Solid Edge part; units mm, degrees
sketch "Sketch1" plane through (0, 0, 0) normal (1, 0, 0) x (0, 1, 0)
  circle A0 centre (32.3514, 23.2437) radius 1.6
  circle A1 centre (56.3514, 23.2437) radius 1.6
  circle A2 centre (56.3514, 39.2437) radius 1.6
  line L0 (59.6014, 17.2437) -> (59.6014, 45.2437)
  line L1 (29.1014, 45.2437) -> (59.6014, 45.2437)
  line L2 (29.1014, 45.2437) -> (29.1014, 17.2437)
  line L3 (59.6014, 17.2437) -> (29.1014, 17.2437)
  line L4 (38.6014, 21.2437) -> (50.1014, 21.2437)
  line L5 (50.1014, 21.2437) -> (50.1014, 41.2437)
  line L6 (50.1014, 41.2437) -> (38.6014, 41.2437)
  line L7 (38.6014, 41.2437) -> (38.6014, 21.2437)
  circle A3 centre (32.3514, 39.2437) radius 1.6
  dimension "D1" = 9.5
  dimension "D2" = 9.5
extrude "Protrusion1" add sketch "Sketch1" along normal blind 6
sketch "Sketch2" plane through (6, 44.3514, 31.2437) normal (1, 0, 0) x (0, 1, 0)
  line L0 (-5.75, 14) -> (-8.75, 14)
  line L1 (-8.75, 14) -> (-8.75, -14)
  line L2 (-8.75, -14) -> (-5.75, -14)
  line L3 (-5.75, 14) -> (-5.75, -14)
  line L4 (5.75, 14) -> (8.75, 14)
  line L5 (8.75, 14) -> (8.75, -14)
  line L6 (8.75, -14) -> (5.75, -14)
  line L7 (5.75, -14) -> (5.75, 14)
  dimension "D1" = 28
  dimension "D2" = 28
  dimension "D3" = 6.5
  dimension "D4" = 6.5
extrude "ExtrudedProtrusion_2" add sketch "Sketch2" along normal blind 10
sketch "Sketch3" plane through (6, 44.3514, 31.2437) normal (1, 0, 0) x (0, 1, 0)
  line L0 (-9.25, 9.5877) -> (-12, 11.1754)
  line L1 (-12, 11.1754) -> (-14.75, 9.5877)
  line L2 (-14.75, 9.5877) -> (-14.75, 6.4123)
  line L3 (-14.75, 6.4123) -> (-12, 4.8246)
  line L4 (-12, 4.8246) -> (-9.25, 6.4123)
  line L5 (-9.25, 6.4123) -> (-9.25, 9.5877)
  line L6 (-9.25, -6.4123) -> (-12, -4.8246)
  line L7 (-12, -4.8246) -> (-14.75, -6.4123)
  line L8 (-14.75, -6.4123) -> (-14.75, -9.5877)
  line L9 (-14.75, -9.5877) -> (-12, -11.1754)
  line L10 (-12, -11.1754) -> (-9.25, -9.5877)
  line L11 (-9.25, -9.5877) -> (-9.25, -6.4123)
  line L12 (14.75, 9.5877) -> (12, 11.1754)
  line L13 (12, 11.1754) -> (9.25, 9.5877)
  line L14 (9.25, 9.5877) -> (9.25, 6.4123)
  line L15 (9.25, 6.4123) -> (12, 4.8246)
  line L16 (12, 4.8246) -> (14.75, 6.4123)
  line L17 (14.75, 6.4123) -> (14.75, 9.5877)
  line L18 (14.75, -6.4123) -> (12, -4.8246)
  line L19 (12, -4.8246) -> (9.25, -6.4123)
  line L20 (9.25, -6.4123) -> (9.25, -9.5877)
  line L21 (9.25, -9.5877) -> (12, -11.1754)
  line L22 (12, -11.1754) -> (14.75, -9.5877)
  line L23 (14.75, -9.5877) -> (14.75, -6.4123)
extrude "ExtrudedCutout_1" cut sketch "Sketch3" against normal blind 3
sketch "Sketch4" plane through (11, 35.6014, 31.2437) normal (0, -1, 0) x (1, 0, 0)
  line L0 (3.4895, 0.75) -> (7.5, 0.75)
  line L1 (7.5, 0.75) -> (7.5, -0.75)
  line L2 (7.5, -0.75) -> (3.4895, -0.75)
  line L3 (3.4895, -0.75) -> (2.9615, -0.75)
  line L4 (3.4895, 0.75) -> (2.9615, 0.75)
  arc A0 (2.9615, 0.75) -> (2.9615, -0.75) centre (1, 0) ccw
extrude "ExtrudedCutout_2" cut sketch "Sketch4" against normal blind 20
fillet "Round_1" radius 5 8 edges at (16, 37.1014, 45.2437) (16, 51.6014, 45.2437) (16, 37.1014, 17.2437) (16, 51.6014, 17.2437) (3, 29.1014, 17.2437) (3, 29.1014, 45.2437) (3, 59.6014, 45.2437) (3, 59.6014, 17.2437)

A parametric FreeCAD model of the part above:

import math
import FreeCAD as App
import Part
import Sketcher
from FreeCAD import Vector
Q = App.Units.Quantity


def edges_at(feature, points):
    """Names of the edges that pass closest to the given points."""
    edges = feature.Shape.Edges
    near = lambda p: min(range(len(edges)), key=lambda i: edges[i].distToShape(Part.Vertex(*p))[0])
    return sorted({f"Edge{near(p) + 1}" for p in points})


def add_polygon(sketch, points):
    """Adds a closed chain of lines whose ends are joined by coincident constraints."""
    first, n = sketch.GeometryCount, len(points)
    for a, b in zip(points, points[1:] + points[:1]):
        sketch.addGeometry(Part.LineSegment(App.Vector(*a, 0), App.Vector(*b, 0)), False)
    for i in range(n):
        sketch.addConstraint(Sketcher.Constraint("Coincident", first + i, 2, first + (i + 1) % n, 1))

doc = App.newDocument("Part")
body = doc.addObject("PartDesign::Body", "Body")

sketch1 = body.newObject("Sketcher::SketchObject", "Sketch")
sketch1.AttachmentSupport = (doc.getObject("YZ_Plane"), [""])
sketch1.MapMode = "FlatFace"
add_polygon(sketch1, [(29.1, 17.2), (59.6, 17.2), (59.6, 45.2), (29.1, 45.2)])
sketch1.addGeometry(Part.Circle(Vector(32.4, 23.2, 0), Vector(0, 0, 1), 1.6), False)
add_polygon(sketch1, [(50.1, 21.2), (38.6, 21.2), (38.6, 41.2), (50.1, 41.2)])
sketch1.addGeometry(Part.Circle(Vector(56.4, 23.2, 0), Vector(0, 0, 1), 1.6), False)
sketch1.addGeometry(Part.Circle(Vector(32.4, 39.2, 0), Vector(0, 0, 1), 1.6), False)
sketch1.addGeometry(Part.Circle(Vector(56.4, 39.2, 0), Vector(0, 0, 1), 1.6), False)
sketch1.addConstraint([
    Sketcher.Constraint("Horizontal", 0),
    Sketcher.Constraint("Vertical", 1),
    Sketcher.Constraint("Horizontal", 2),
    Sketcher.Constraint("Vertical", 3),
    Sketcher.Constraint("Horizontal", 5),
    Sketcher.Constraint("Vertical", 6),
    Sketcher.Constraint("Horizontal", 7),
    Sketcher.Constraint("Vertical", 8),
    Sketcher.Constraint("Equal", 4, 9),
    Sketcher.Constraint("Equal", 9, 10),
    Sketcher.Constraint("Equal", 10, 11),
    Sketcher.Constraint("Horizontal", 4, 3, 9, 3),
    Sketcher.Constraint("Horizontal", 10, 3, 11, 3),
    Sketcher.Constraint("Vertical", 4, 3, 10, 3),
    Sketcher.Constraint("Vertical", 9, 3, 11, 3),
    Sketcher.Constraint("Diameter", 4, 3.2),
    Sketcher.Constraint("DistanceY", 1, 1, 1, 2, 28.0),
    Sketcher.Constraint("DistanceY", 6, 1, 6, 2, 20.0),
    Sketcher.Constraint("DistanceX", 0, 1, 0, 2, 30.5),
    Sketcher.Constraint("DistanceX", 5, 2, 5, 1, 11.5),
    Sketcher.Constraint("DistanceX", 4, 3, 9, 3, 24.0),
    Sketcher.Constraint("DistanceY", 4, 3, 10, 3, 16.0),
    Sketcher.Constraint("DistanceY", 0, 2, 9, 3, 6.0),
    Sketcher.Constraint("DistanceY", 5, 2, 4, 3, 2.0),
    Sketcher.Constraint("DistanceX", 5, 2, 0, 2, 21.0),
    Sketcher.Constraint("DistanceX", 9, 3, 0, 2, 3.25),
    Sketcher.Constraint("DistanceX", -1, 1, 4, 3, 32.3514),
    Sketcher.Constraint("DistanceY", -1, 1, 4, 3, 23.2437),
])
pad1 = body.newObject("PartDesign::Pad", "Pad")
pad1.Profile = sketch1
pad1.Length = 6

sketch2 = body.newObject("Sketcher::SketchObject", "Sketch001")
sketch2.AttachmentSupport = (doc.getObject("YZ_Plane"), [""])
sketch2.MapMode = "FlatFace"
sketch2.AttachmentOffset = App.Placement(Vector(0, 0, 6), App.Rotation())
add_polygon(sketch2, [(38.6, 17.2), (38.6, 45.2), (35.6, 45.2), (35.6, 17.2)])
add_polygon(sketch2, [(53.1, 45.2), (50.1, 45.2), (50.1, 17.2), (53.1, 17.2)])
sketch2.addConstraint([
    Sketcher.Constraint("Vertical", 0),
    Sketcher.Constraint("Horizontal", 1),
    Sketcher.Constraint("Vertical", 2),
    Sketcher.Constraint("Horizontal", 3),
    Sketcher.Constraint("Horizontal", 4),
    Sketcher.Constraint("Vertical", 5),
    Sketcher.Constraint("Horizontal", 6),
    Sketcher.Constraint("Vertical", 7),
    Sketcher.Constraint("Horizontal", 1, 2, 4, 2),
    Sketcher.Constraint("Horizontal", 3, 2, 5, 2),
    Sketcher.Constraint("Equal", 3, 4),
    Sketcher.Constraint("DistanceX", 1, 2, 1, 1, 3.0),
    Sketcher.Constraint("DistanceY", 0, 1, 0, 2, 28.0),
    Sketcher.Constraint("DistanceX", 0, 2, 4, 2, 11.5),
    Sketcher.Constraint("DistanceX", -1, 1, 0, 2, 38.6014),
    Sketcher.Constraint("DistanceY", -1, 1, 0, 2, 45.2437),
])
pad2 = body.newObject("PartDesign::Pad", "Pad001")
pad2.Profile = sketch2
pad2.Length = 10

sketch3 = body.newObject("Sketcher::SketchObject", "Sketch002")
sketch3.AttachmentSupport = (doc.getObject("YZ_Plane"), [""])
sketch3.MapMode = "FlatFace"
sketch3.AttachmentOffset = App.Placement(Vector(0, 0, 6), App.Rotation())
add_polygon(sketch3, [(35.1, 37.7), (35.1, 40.8), (32.4, 42.4), (29.6, 40.8), (29.6, 37.7), (32.4, 36.1)])
add_polygon(sketch3, [(35.1, 21.7), (35.1, 24.8), (32.4, 26.4), (29.6, 24.8), (29.6, 21.7), (32.4, 20.1)])
add_polygon(sketch3, [(59.1, 37.7), (59.1, 40.8), (56.4, 42.4), (53.6, 40.8), (53.6, 37.7), (56.4, 36.1)])
add_polygon(sketch3, [(59.1, 21.7), (59.1, 24.8), (56.4, 26.4), (53.6, 24.8), (53.6, 21.7), (56.4, 20.1)])
sketch3.addConstraint([
    Sketcher.Constraint("Vertical", 0),
    Sketcher.Constraint("Vertical", 3),
    Sketcher.Constraint("Vertical", 6),
    Sketcher.Constraint("Vertical", 9),
    Sketcher.Constraint("Vertical", 12),
    Sketcher.Constraint("Vertical", 15),
    Sketcher.Constraint("Vertical", 18),
    Sketcher.Constraint("Vertical", 21),
    Sketcher.Constraint("Parallel", 1, 4),
    Sketcher.Constraint("Parallel", 2, 5),
    Sketcher.Constraint("Parallel", 4, 7),
    Sketcher.Constraint("Parallel", 5, 8),
    Sketcher.Constraint("Parallel", 7, 10),
    Sketcher.Constraint("Parallel", 8, 11),
    Sketcher.Constraint("Parallel", 10, 13),
    Sketcher.Constraint("Parallel", 11, 14),
    Sketcher.Constraint("Parallel", 13, 16),
    Sketcher.Constraint("Parallel", 14, 17),
    Sketcher.Constraint("Parallel", 16, 19),
    Sketcher.Constraint("Parallel", 17, 20),
    Sketcher.Constraint("Parallel", 19, 22),
    Sketcher.Constraint("Parallel", 20, 23),
    Sketcher.Constraint("Horizontal", 0, 2, 2, 2),
    Sketcher.Constraint("Horizontal", 3, 2, 5, 2),
    Sketcher.Constraint("Horizontal", 6, 2, 8, 2),
    Sketcher.Constraint("Horizontal", 9, 2, 11, 2),
    Sketcher.Constraint("Horizontal", 2, 2, 12, 2),
    Sketcher.Constraint("Horizontal", 1, 2, 13, 2),
    Sketcher.Constraint("Horizontal", 12, 2, 14, 2),
    Sketcher.Constraint("Horizontal", 5, 2, 15, 2),
    Sketcher.Constraint("Horizontal", 4, 2, 16, 2),
    Sketcher.Constraint("Horizontal", 8, 2, 18, 2),
    Sketcher.Constraint("Horizontal", 7, 2, 19, 2),
    Sketcher.Constraint("Horizontal", 18, 2, 20, 2),
    Sketcher.Constraint("Horizontal", 11, 2, 21, 2),
    Sketcher.Constraint("Horizontal", 10, 2, 22, 2),
    Sketcher.Constraint("Vertical", 1, 2, 4, 2),
    Sketcher.Constraint("Vertical", 5, 2, 6, 2),
    Sketcher.Constraint("Vertical", 4, 2, 7, 2),
    Sketcher.Constraint("Vertical", 17, 2, 18, 2),
    Sketcher.Constraint("Equal", 3, 6),
    Sketcher.Constraint("Angle", 1, Q("150.0002 deg")),
    Sketcher.Constraint("DistanceY", 6, 2, 0, 2, 16.0),
    Sketcher.Constraint("DistanceX", 0, 2, 12, 2, 24.0),
    Sketcher.Constraint("DistanceX", 2, 2, 0, 2, 5.5),
    Sketcher.Constraint("DistanceY", 0, 1, 0, 2, 3.1754),
    Sketcher.Constraint("DistanceY", -1, 1, 1, 2, 42.419),
    Sketcher.Constraint("DistanceX", -1, 1, 0, 2, 35.1014),
])
pocket1 = body.newObject("PartDesign::Pocket", "Pocket")
pocket1.Profile = sketch3
pocket1.Length = 3

sketch4 = body.newObject("Sketcher::SketchObject", "Sketch003")
sketch4.AttachmentSupport = (doc.getObject("XZ_Plane"), [""])
sketch4.MapMode = "FlatFace"
sketch4.AttachmentOffset = App.Placement(Vector(0, 0, -35.6014), App.Rotation())
sketch4.addGeometry([
    Part.LineSegment(Vector(18.5, 32, 0), Vector(14, 32, 0)),
    Part.ArcOfCircle(Part.Circle(Vector(12, 31.2, 0), Vector(0, 0, 1), 2.1), math.radians(21), math.radians(339)),
    Part.LineSegment(Vector(14, 30.5, 0), Vector(18.5, 30.5, 0)),
    Part.LineSegment(Vector(18.5, 30.5, 0), Vector(18.5, 32, 0)),
], False)
sketch4.addConstraint([
    Sketcher.Constraint("Coincident", 0, 2, 1, 1),
    Sketcher.Constraint("Coincident", 1, 2, 2, 1),
    Sketcher.Constraint("Coincident", 2, 2, 3, 1),
    Sketcher.Constraint("Coincident", 3, 2, 0, 1),
    Sketcher.Constraint("Horizontal", 0),
    Sketcher.Constraint("Horizontal", 2),
    Sketcher.Constraint("Vertical", 3),
    Sketcher.Constraint("Vertical", 0, 2, 1, 2),
    Sketcher.Constraint("Radius", 1, 2.1),
    Sketcher.Constraint("DistanceY", 3, 1, 3, 2, 1.5),
    Sketcher.Constraint("DistanceX", -1, 1, 1, 3, 12.0),
    Sketcher.Constraint("DistanceX", -1, 1, 2, 2, 18.5),
    Sketcher.Constraint("DistanceY", -1, 1, 1, 3, 31.2437),
])
pocket2 = body.newObject("PartDesign::Pocket", "Pocket001")
pocket2.Profile = sketch4
pocket2.Length = 20
doc.recompute()

fillet = body.newObject("PartDesign::Fillet", "Fillet")
fillet.Base = (pocket2, edges_at(pocket2, [
    (16, 37.101, 45.244),
    (16, 51.601, 45.244),
    (16, 37.101, 17.244),
    (16, 51.601, 17.244),
    (3, 29.101, 17.244),
    (3, 29.101, 45.244),
    (3, 59.601, 45.244),
    (3, 59.601, 17.244),
]))
fillet.Radius = 5

doc.recompute()
